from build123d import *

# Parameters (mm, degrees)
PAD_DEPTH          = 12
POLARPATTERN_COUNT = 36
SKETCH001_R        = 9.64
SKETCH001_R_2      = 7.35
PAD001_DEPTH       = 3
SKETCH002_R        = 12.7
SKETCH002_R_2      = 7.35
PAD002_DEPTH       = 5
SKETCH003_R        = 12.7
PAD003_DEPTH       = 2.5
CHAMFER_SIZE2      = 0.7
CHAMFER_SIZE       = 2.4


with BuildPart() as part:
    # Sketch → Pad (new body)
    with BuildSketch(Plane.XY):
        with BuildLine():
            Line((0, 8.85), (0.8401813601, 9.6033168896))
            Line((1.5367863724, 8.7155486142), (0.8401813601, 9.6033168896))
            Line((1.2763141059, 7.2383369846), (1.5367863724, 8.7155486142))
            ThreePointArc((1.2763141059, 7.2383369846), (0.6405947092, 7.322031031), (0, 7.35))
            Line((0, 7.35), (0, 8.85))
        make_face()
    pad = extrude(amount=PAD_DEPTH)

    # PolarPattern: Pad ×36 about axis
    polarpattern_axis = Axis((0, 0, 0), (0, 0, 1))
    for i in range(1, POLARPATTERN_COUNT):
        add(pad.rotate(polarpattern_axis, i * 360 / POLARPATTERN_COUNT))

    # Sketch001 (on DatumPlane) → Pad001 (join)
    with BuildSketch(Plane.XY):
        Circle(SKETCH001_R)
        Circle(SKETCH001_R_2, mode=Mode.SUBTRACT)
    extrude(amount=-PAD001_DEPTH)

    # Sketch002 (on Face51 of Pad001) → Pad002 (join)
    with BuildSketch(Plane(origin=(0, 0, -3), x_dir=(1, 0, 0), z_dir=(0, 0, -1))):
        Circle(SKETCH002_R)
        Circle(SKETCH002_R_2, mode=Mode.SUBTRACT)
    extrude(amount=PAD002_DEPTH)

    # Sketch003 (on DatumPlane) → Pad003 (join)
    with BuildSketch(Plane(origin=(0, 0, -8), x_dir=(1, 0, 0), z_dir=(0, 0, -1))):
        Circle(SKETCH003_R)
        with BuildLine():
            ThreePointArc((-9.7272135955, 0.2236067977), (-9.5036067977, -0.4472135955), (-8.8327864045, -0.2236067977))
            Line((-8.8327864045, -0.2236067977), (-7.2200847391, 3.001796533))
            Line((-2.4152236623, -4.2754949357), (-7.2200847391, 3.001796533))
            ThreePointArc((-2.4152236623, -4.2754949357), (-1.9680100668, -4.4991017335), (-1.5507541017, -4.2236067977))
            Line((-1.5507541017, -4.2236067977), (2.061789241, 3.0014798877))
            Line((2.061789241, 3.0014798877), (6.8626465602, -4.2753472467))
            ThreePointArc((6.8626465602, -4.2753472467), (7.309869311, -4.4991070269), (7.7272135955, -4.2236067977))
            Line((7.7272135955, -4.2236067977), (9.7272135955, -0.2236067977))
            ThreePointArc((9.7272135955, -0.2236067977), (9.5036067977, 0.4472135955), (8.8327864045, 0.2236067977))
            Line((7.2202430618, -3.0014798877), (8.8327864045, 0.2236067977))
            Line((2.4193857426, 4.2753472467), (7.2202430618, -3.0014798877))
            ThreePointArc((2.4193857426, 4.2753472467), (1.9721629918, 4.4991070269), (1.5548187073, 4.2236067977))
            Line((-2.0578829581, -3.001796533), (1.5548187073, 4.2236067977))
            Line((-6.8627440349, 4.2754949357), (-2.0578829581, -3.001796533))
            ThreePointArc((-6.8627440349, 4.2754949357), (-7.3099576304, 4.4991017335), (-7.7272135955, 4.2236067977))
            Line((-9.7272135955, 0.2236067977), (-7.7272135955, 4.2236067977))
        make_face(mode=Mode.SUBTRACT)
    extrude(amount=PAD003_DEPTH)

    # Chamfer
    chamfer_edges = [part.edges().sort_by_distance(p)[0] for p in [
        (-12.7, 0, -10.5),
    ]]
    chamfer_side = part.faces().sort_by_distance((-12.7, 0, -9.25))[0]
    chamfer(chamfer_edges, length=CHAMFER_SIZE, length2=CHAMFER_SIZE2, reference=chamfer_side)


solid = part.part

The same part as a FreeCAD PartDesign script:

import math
import FreeCAD as App
import Part
import Sketcher

V = App.Vector
Q = App.Units.Quantity


def edges_at(feature, points):
    """Names of the edges that pass closest to the given points."""
    edges = feature.Shape.Edges
    near = lambda p: min(range(len(edges)), key=lambda i: edges[i].distToShape(Part.Vertex(*p))[0])
    return sorted({f"Edge{near(p) + 1}" for p in points})

doc = App.newDocument("Part")
body = doc.addObject("PartDesign::Body", "Body")

# Sketch on XY plane
sketch1 = body.newObject("Sketcher::SketchObject", "Sketch")
sketch1.AttachmentSupport = (doc.getObject("XY_Plane"), [""])
sketch1.MapMode = "FlatFace"
sketch1.addGeometry([
    Part.LineSegment(V(0.8, 9.6, 0), V(0, 8.8, 0)),  # 0
    Part.LineSegment(V(0, 8.8, 0), V(0, 7.3, 0)),  # 1
    Part.ArcOfCircle(Part.Circle(V(0, 0, 0), V(0, 0, 1), 7.3), math.radians(80), math.radians(90)),  # 2
    Part.LineSegment(V(1.3, 7.2, 0), V(1.5, 8.7, 0)),  # 3
    Part.LineSegment(V(1.5, 8.7, 0), V(0.8, 9.6, 0)),  # 4
], False)
sketch1.addConstraint([
    Sketcher.Constraint("Coincident", 0, 2, 1, 1),
    Sketcher.Constraint("Coincident", 1, 2, 2, 2),
    Sketcher.Constraint("Coincident", 2, 1, 3, 1),
    Sketcher.Constraint("Coincident", 3, 2, 4, 1),
    Sketcher.Constraint("Coincident", 4, 2, 0, 1),
    Sketcher.Constraint("Vertical", 1),
    Sketcher.Constraint("Coincident", 2, 3, -1, 1),
    Sketcher.Constraint("PointOnObject", 0, 2, -2),
    Sketcher.Constraint("Equal", 0, 4),
    Sketcher.Constraint("Angle", 3, Q("80 deg")),
    Sketcher.Constraint("Radius", 2, 7.35),
    Sketcher.Constraint("DistanceY", 1, 2, 1, 1, 1.5),
    Sketcher.Constraint("Distance", 3, 1.5),
    Sketcher.Constraint("DistanceY", -1, 1, 3, 2, 8.715549),
    Sketcher.Constraint("DistanceX", -1, 1, 4, 2, 0.840181),
])
pad1 = body.newObject("PartDesign::Pad", "Pad")
pad1.Profile = sketch1
pad1.Length = 12
doc.recompute()

polarpattern = body.newObject("PartDesign::PolarPattern", "PolarPattern")
polarpattern.Originals = [pad1]
polarpattern.Axis = (doc.getObject("Z_Axis"), [""])
polarpattern.Angle = 360
polarpattern.Occurrences = 36
body.Tip = polarpattern

# Sketch on XY plane
sketch2 = body.newObject("Sketcher::SketchObject", "Sketch001")
sketch2.AttachmentSupport = (doc.getObject("XY_Plane"), [""])
sketch2.MapMode = "FlatFace"
sketch2.addGeometry([
    Part.Circle(V(0, 0, 0), V(0, 0, 1), 10),
    Part.Circle(V(0, 0, 0), V(0, 0, 1), 7),
], False)
sketch2.addConstraint([
    Sketcher.Constraint("Coincident", 0, 3, -1, 1),
    Sketcher.Constraint("Coincident", 1, 3, -1, 1),
    Sketcher.Constraint("Diameter", 1, 14.7),
    Sketcher.Constraint("Diameter", 0, 19.28),
])
pad2 = body.newObject("PartDesign::Pad", "Pad001")
pad2.Profile = sketch2
pad2.Length = 3
pad2.Reversed = True

# Sketch on XY plane
sketch3 = body.newObject("Sketcher::SketchObject", "Sketch002")
sketch3.AttachmentSupport = (doc.getObject("XY_Plane"), [""])
sketch3.MapMode = "FlatFace"
sketch3.AttachmentOffset = App.Placement(V(0, 0, -3), App.Rotation())
sketch3.addGeometry([
    Part.Circle(V(0, 0, 0), V(0, 0, 1), 13),
    Part.Circle(V(0, 0, 0), V(0, 0, 1), 7),
], False)
sketch3.addConstraint([
    Sketcher.Constraint("Coincident", 0, 3, -1, 1),
    Sketcher.Constraint("Coincident", 1, 3, -1, 1),
    Sketcher.Constraint("Diameter", 0, 25.4),
    Sketcher.Constraint("Diameter", 1, 14.7),
])
pad3 = body.newObject("PartDesign::Pad", "Pad002")
pad3.Profile = sketch3
pad3.Length = 5
pad3.Reversed = True

# Sketch on XY plane
sketch4 = body.newObject("Sketcher::SketchObject", "Sketch003")
sketch4.AttachmentSupport = (doc.getObject("XY_Plane"), [""])
sketch4.MapMode = "FlatFace"
sketch4.AttachmentOffset = App.Placement(V(0, 0, -8), App.Rotation())
sketch4.addGeometry([
    Part.Circle(V(0, 0, 0), V(0, 0, 1), 12.7),  # 0
    Part.ArcOfCircle(Part.Circle(V(-9.28, 0, 0), V(0, 0, 1), 0.5), math.radians(26.565051), math.radians(206.565051)),  # 1
    Part.LineSegment(V(-9.727214, -0.223607, 0), V(-7.727214, -4.223607, 0)),  # 2
    Part.ArcOfCircle(Part.Circle(V(-7.28, -4, 0), V(0, 0, 1), 0.5), math.radians(-153.434949), math.radians(-33.434949)),  # 3
    Part.LineSegment(V(-6.862744, -4.275495, 0), V(-2.057883, 3.001797, 0)),  # 4
    Part.LineSegment(V(-2.057883, 3.001797, 0), V(1.554819, -4.223607, 0)),  # 5
    Part.ArcOfCircle(Part.Circle(V(2.002032, -4, 0), V(0, 0, 1), 0.5), math.radians(-153.434949), math.radians(-33.414671)),  # 6
    Part.LineSegment(V(2.419386, -4.275347, 0), V(7.220243, 3.00148, 0)),  # 7
    Part.LineSegment(V(7.220243, 3.00148, 0), V(8.832786, -0.223607, 0)),  # 8
    Part.ArcOfCircle(Part.Circle(V(9.28, 0, 0), V(0, 0, 1), 0.5), math.radians(-153.434949), math.radians(26.565051)),  # 9
    Part.LineSegment(V(9.727214, 0.223607, 0), V(7.727214, 4.223607, 0)),  # 10
    Part.ArcOfCircle(Part.Circle(V(7.28, 4, 0), V(0, 0, 1), 0.5), math.radians(26.565051), math.radians(146.585329)),  # 11
    Part.LineSegment(V(6.862647, 4.275347, 0), V(2.061789, -3.00148, 0)),  # 12
    Part.LineSegment(V(2.061789, -3.00148, 0), V(-1.550754, 4.223607, 0)),  # 13
    Part.ArcOfCircle(Part.Circle(V(-1.997968, 4, 0), V(0, 0, 1), 0.5), math.radians(26.565051), math.radians(146.565051)),  # 14
    Part.LineSegment(V(-2.415224, 4.275495, 0), V(-7.220085, -3.001797, 0)),  # 15
    Part.LineSegment(V(-7.220085, -3.001797, 0), V(-8.832786, 0.223607, 0)),  # 16
], False)
sketch4.addConstraint([
    Sketcher.Constraint("Coincident", 1, 2, 2, 1),
    Sketcher.Constraint("Coincident", 2, 2, 3, 1),
    Sketcher.Constraint("Coincident", 3, 2, 4, 1),
    Sketcher.Constraint("Coincident", 4, 2, 5, 1),
    Sketcher.Constraint("Coincident", 5, 2, 6, 1),
    Sketcher.Constraint("Coincident", 6, 2, 7, 1),
    Sketcher.Constraint("Coincident", 7, 2, 8, 1),
    Sketcher.Constraint("Coincident", 8, 2, 9, 1),
    Sketcher.Constraint("Coincident", 9, 2, 10, 1),
    Sketcher.Constraint("Coincident", 10, 2, 11, 1),
    Sketcher.Constraint("Coincident", 11, 2, 12, 1),
    Sketcher.Constraint("Coincident", 12, 2, 13, 1),
    Sketcher.Constraint("Coincident", 13, 2, 14, 1),
    Sketcher.Constraint("Coincident", 14, 2, 15, 1),
    Sketcher.Constraint("Coincident", 15, 2, 16, 1),
    Sketcher.Constraint("Coincident", 16, 2, 1, 1),
    Sketcher.Constraint("Coincident", 0, 3, -1, 1),
    Sketcher.Constraint("PointOnObject", 1, 3, -1),
    Sketcher.Constraint("PointOnObject", 9, 3, -1),
    Sketcher.Constraint("Diameter", 0, 25.4),
    Sketcher.Constraint("Radius", 1, 0.5),
    Sketcher.Constraint("Radius", 3, 0.5),
    Sketcher.Constraint("Radius", 6, 0.5),
    Sketcher.Constraint("Radius", 9, 0.5),
    Sketcher.Constraint("Radius", 11, 0.5),
    Sketcher.Constraint("Radius", 14, 0.5),
    Sketcher.Constraint("DistanceY", 3, 3, -1, 1, 4.0),
    Sketcher.Constraint("DistanceY", 6, 3, -1, 1, 4.0),
    Sketcher.Constraint("DistanceY", -1, 1, 11, 3, 4.0),
    Sketcher.Constraint("DistanceY", -1, 1, 14, 3, 4.0),
    Sketcher.Constraint("DistanceX", 1, 3, 3, 3, 2.0),
    Sketcher.Constraint("DistanceX", 11, 3, 9, 3, 2.0),
    Sketcher.Constraint("DistanceX", 14, 3, 6, 3, 4.0),
    Sketcher.Constraint("DistanceX", 1, 2, 2, 2, 2.0),
    Sketcher.Constraint("DistanceX", 10, 2, 9, 2, 2.0),
    Sketcher.Constraint("DistanceX", 1, 3, -1, 1, 9.28),
    Sketcher.Constraint("DistanceX", -1, 1, 9, 3, 9.28),
    Sketcher.Constraint("DistanceX", 4, 2, 5, 2, 3.612702),
    Sketcher.Constraint("DistanceX", 6, 2, 8, 2, 6.413401),
    Sketcher.Constraint("DistanceX", 13, 2, 11, 2, 8.413401),
    Sketcher.Constraint("DistanceY", 4, 2, 14, 2, 1.273698),
    Sketcher.Constraint("DistanceY", 3, 2, 15, 2, 1.273698),
    Sketcher.Constraint("DistanceX", 16, 2, 15, 2, 1.612702),
    Sketcher.Constraint("Distance", 16, 3.606111),
    Sketcher.Constraint("DistanceX", -1, 1, 5, 2, 1.554819),
    Sketcher.Constraint("DistanceY", -1, 1, 7, 2, 3.00148),
    Sketcher.Constraint("DistanceX", -1, 1, 12, 2, 2.061789),
    Sketcher.Constraint("DistanceY", 12, 2, -1, 1, 3.00148),
    Sketcher.Constraint("DistanceX", 2, 2, 3, 2, 0.86447),
    Sketcher.Constraint("DistanceY", 3, 2, 2, 2, 0.051888),
    Sketcher.Constraint("DistanceY", 3, 2, 5, 2, 0.051888),
    Sketcher.Constraint("DistanceY", 6, 2, 5, 2, 0.05174),
    Sketcher.Constraint("DistanceX", 6, 3, 7, 2, 5.218211),
    Sketcher.Constraint("DistanceX", 7, 2, 9, 2, 2.506971),
    Sketcher.Constraint("DistanceY", 10, 2, 11, 2, 0.05174),
    Sketcher.Constraint("DistanceY", 4, 2, 13, 2, 1.22181),
])
pad4 = body.newObject("PartDesign::Pad", "Pad003")
pad4.Profile = sketch4
pad4.Length = 2.5
pad4.Reversed = True
doc.recompute()

chamfer = body.newObject("PartDesign::Chamfer", "Chamfer")
chamfer.Base = (pad4, edges_at(pad4, [(-12.7, 0, -10.5)]))
chamfer.ChamferType = "Two distances"
chamfer.Size = 2.4
chamfer.Size2 = 0.7
chamfer.FlipDirection = True

doc.recompute()
